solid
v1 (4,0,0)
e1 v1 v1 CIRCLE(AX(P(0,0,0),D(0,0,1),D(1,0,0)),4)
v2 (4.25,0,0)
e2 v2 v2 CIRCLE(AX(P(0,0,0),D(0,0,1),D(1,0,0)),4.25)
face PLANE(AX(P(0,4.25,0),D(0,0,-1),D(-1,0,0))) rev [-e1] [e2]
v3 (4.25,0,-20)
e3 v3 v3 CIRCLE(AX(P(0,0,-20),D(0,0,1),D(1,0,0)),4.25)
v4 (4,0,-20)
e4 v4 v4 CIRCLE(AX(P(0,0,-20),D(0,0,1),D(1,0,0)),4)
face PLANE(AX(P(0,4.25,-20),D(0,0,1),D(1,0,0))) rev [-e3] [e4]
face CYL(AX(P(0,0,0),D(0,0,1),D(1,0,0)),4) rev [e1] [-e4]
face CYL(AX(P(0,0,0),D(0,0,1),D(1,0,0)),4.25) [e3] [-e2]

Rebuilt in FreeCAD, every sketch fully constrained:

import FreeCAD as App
import Part
import Sketcher


def add_polygon(sketch, points):
    """Adds a closed chain of lines whose ends are joined by coincident constraints."""
    first, n = sketch.GeometryCount, len(points)
    for a, b in zip(points, points[1:] + points[:1]):
        sketch.addGeometry(Part.LineSegment(App.Vector(*a, 0), App.Vector(*b, 0)), False)
    for i in range(n):
        sketch.addConstraint(Sketcher.Constraint("Coincident", first + i, 2, first + (i + 1) % n, 1))

doc = App.newDocument("Part")
body = doc.addObject("PartDesign::Body", "Body")

# Sketch on YZ plane
sketch1 = doc.addObject("Sketcher::SketchObject", "Sketch")
body.addObject(sketch1)
sketch1.AttachmentSupport = (doc.YZ_Plane, [""])
sketch1.MapMode = "FlatFace"
add_polygon(sketch1, [(4.25, 0), (4, 0), (4, -20), (4.25, -20)])  # lines 0-3
sketch1.addConstraint(Sketcher.Constraint("Horizontal", 0))
sketch1.addConstraint(Sketcher.Constraint("Vertical", 1))
sketch1.addConstraint(Sketcher.Constraint("Horizontal", 2))
sketch1.addConstraint(Sketcher.Constraint("Vertical", 3))
sketch1.addConstraint(Sketcher.Constraint("PointOnObject", 0, 2, -1))
sketch1.addConstraint(Sketcher.Constraint("DistanceY", 1, 2, 1, 1, 20.0))
sketch1.addConstraint(Sketcher.Constraint("DistanceX", -1, 1, 0, 2, 4.0))
sketch1.addConstraint(Sketcher.Constraint("DistanceX", 0, 2, 0, 1, 0.25))
revolution = doc.addObject("PartDesign::Revolution", "Revolution")
body.addObject(revolution)
revolution.Profile = sketch1
revolution.ReferenceAxis = (sketch1, ["V_Axis"])
revolution.Angle = 360

doc.recompute()
